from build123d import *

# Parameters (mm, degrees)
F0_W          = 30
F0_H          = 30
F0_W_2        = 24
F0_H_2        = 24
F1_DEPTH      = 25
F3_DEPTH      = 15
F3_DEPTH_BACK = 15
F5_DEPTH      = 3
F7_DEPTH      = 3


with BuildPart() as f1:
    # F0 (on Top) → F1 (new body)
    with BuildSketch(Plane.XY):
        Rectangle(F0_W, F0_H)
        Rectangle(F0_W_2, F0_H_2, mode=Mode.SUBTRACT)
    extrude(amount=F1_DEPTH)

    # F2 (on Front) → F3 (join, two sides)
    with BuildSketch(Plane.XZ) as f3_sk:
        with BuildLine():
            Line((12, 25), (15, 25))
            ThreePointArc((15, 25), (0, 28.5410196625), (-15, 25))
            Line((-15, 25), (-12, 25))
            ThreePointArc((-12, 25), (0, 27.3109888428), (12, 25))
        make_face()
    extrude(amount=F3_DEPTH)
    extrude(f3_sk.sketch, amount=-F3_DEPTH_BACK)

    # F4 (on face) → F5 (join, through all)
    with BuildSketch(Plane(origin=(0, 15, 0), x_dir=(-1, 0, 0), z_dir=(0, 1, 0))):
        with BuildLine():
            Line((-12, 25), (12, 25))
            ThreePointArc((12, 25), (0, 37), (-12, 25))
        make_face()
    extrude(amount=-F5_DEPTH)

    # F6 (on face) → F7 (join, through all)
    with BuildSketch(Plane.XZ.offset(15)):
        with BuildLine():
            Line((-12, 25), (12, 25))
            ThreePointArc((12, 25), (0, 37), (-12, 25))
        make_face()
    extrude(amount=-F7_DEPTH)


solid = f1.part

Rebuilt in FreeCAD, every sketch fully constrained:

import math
import FreeCAD as App
import Part
import Sketcher

V = App.Vector
Q = App.Units.Quantity

doc = App.newDocument("Part")
params = doc.addObject("Spreadsheet::Sheet", "Params")
for row, (alias, value) in enumerate([
    ("sketch1_width", "30 mm"),
    ("sketch1_width2", "24 mm"),
    ("pad1_length", "25 mm"),
    ("sketch2_width", "3 mm"),
    ("pad2_length", "15 mm"),
    ("pad2_length2", "15 mm"),
    ("sketch3_radius", "12 mm"),
    ("pad3_length", "3 mm"),
    ("sketch4_radius", "12 mm"),
    ("pad4_length", "3 mm"),
], start=1):
    params.set(f"A{row}", alias)
    params.set(f"B{row}", "=" + value)
    params.setAlias(f"B{row}", alias)

body = doc.addObject("PartDesign::Body", "Body")

sketch1 = doc.addObject("Sketcher::SketchObject", "Sketch")
body.addObject(sketch1)
sketch1.AttachmentSupport = (doc.XY_Plane, [""])
sketch1.MapMode = "FlatFace"
sketch1.addGeometry([
    Part.LineSegment(V(-15, 15, 0), V(-15, -15, 0)),
    Part.LineSegment(V(-15, -15, 0), V(15, -15, 0)),
    Part.LineSegment(V(15, -15, 0), V(15, 15, 0)),
    Part.LineSegment(V(15, 15, 0), V(-15, 15, 0)),
    Part.LineSegment(V(12, -12, 0), V(-12, -12, 0)),
    Part.LineSegment(V(-12, -12, 0), V(-12, 12, 0)),
    Part.LineSegment(V(-12, 12, 0), V(12, 12, 0)),
    Part.LineSegment(V(12, 12, 0), V(12, -12, 0)),
], False)
sketch1.addConstraint([
    Sketcher.Constraint("Coincident", 0, 2, 1, 1),
    Sketcher.Constraint("Coincident", 1, 2, 2, 1),
    Sketcher.Constraint("Coincident", 2, 2, 3, 1),
    Sketcher.Constraint("Coincident", 3, 2, 0, 1),
    Sketcher.Constraint("Coincident", 4, 2, 5, 1),
    Sketcher.Constraint("Coincident", 5, 2, 6, 1),
    Sketcher.Constraint("Coincident", 6, 2, 7, 1),
    Sketcher.Constraint("Coincident", 7, 2, 4, 1),
    Sketcher.Constraint("Vertical", 0),
    Sketcher.Constraint("Horizontal", 1),
    Sketcher.Constraint("Vertical", 2),
    Sketcher.Constraint("Horizontal", 3),
    Sketcher.Constraint("Horizontal", 4),
    Sketcher.Constraint("Vertical", 5),
    Sketcher.Constraint("Horizontal", 6),
    Sketcher.Constraint("Vertical", 7),
    Sketcher.Constraint("Symmetric", 0, 2, 2, 2, -1, 1),
    Sketcher.Constraint("Symmetric", 4, 2, 6, 2, -1, 1),
    Sketcher.Constraint("Equal", 3, 0),
    Sketcher.Constraint("Equal", 6, 5),
    Sketcher.Constraint("DistanceX", 1, 1, 1, 2, Q("30 mm")),
    Sketcher.Constraint("DistanceX", 4, 2, 4, 1, Q("24 mm")),
])
sketch1.setExpression("Constraints[20]", "Params.sketch1_width")
sketch1.setExpression("Constraints[21]", "Params.sketch1_width2")
pad1 = doc.addObject("PartDesign::Pad", "Pad")
body.addObject(pad1)
pad1.Profile = sketch1
pad1.setExpression("Length", "Params.pad1_length")

sketch2 = doc.addObject("Sketcher::SketchObject", "Sketch001")
body.addObject(sketch2)
sketch2.AttachmentSupport = (doc.XZ_Plane, [""])
sketch2.MapMode = "FlatFace"
sketch2.addGeometry([
    Part.LineSegment(V(12, 25, 0), V(15, 25, 0)),
    Part.ArcOfCircle(Part.Circle(V(0, -5, 0), V(0, 0, 1), 33.5), math.radians(63), math.radians(117)),
    Part.LineSegment(V(-15, 25, 0), V(-12, 25, 0)),
    Part.ArcOfCircle(Part.Circle(V(0, -5, 0), V(0, 0, 1), 32.3), math.radians(68), math.radians(112)),
], False)
sketch2.addConstraint([
    Sketcher.Constraint("Coincident", 0, 2, 1, 1),
    Sketcher.Constraint("Coincident", 1, 2, 2, 1),
    Sketcher.Constraint("Coincident", 2, 2, 3, 2),
    Sketcher.Constraint("Coincident", 3, 1, 0, 1),
    Sketcher.Constraint("Horizontal", 0),
    Sketcher.Constraint("Horizontal", 2),
    Sketcher.Constraint("Coincident", 3, 3, 1, 3),
    Sketcher.Constraint("Symmetric", 0, 2, 1, 2, -2),
    Sketcher.Constraint("DistanceX", 0, 1, 0, 2, Q("3 mm")),
    Sketcher.Constraint("DistanceY", 1, 3, -1, 1, Q("5 mm")),
    Sketcher.Constraint("DistanceX", -1, 1, 0, 2, Q("15 mm")),
    Sketcher.Constraint("DistanceY", -1, 1, 0, 2, Q("25 mm")),
])
sketch2.setExpression("Constraints[8]", "Params.sketch2_width")
pad2 = doc.addObject("PartDesign::Pad", "Pad001")
body.addObject(pad2)
pad2.Profile = sketch2
pad2.Type = "TwoLengths"
pad2.setExpression("Length", "Params.pad2_length")
pad2.setExpression("Length2", "Params.pad2_length2")

sketch3 = doc.addObject("Sketcher::SketchObject", "Sketch002")
body.addObject(sketch3)
sketch3.AttachmentSupport = (doc.XZ_Plane, [""])
sketch3.MapMode = "FlatFace"
sketch3.AttachmentOffset = App.Placement(V(0, 0, -15), App.Rotation())
sketch3.addGeometry([
    Part.LineSegment(V(12, 25, 0), V(-12, 25, 0)),
    Part.ArcOfCircle(Part.Circle(V(0, 25, 0), V(0, 0, 1), 12), math.radians(0), math.radians(180)),
], False)
sketch3.addConstraint([
    Sketcher.Constraint("Coincident", 0, 1, 1, 1),
    Sketcher.Constraint("Coincident", 1, 2, 0, 2),
    Sketcher.Constraint("Horizontal", 0),
    Sketcher.Constraint("PointOnObject", 1, 3, -2),
    Sketcher.Constraint("Horizontal", 1, 3, 0, 1),
    Sketcher.Constraint("Radius", 1, Q("12 mm")),
    Sketcher.Constraint("DistanceY", -1, 1, 1, 3, Q("25 mm")),
])
sketch3.setExpression("Constraints[5]", "Params.sketch3_radius")
pad3 = doc.addObject("PartDesign::Pad", "Pad002")
body.addObject(pad3)
pad3.Profile = sketch3
pad3.setExpression("Length", "Params.pad3_length")

sketch4 = doc.addObject("Sketcher::SketchObject", "Sketch003")
body.addObject(sketch4)
sketch4.AttachmentSupport = (doc.XZ_Plane, [""])
sketch4.MapMode = "FlatFace"
sketch4.AttachmentOffset = App.Placement(V(0, 0, 15), App.Rotation())
sketch4.addGeometry([
    Part.LineSegment(V(-12, 25, 0), V(12, 25, 0)),
    Part.ArcOfCircle(Part.Circle(V(0, 25, 0), V(0, 0, 1), 12), math.radians(0), math.radians(180)),
], False)
sketch4.addConstraint([
    Sketcher.Constraint("Coincident", 0, 1, 1, 2),
    Sketcher.Constraint("Coincident", 1, 1, 0, 2),
    Sketcher.Constraint("Horizontal", 0),
    Sketcher.Constraint("PointOnObject", 1, 3, -2),
    Sketcher.Constraint("Horizontal", 1, 3, 0, 1),
    Sketcher.Constraint("Radius", 1, Q("12 mm")),
    Sketcher.Constraint("DistanceY", -1, 1, 1, 3, Q("25 mm")),
])
sketch4.setExpression("Constraints[5]", "Params.sketch4_radius")
pad4 = doc.addObject("PartDesign::Pad", "Pad003")
body.addObject(pad4)
pad4.Profile = sketch4
pad4.setExpression("Length", "Params.pad4_length")
pad4.Reversed = True

doc.recompute()
